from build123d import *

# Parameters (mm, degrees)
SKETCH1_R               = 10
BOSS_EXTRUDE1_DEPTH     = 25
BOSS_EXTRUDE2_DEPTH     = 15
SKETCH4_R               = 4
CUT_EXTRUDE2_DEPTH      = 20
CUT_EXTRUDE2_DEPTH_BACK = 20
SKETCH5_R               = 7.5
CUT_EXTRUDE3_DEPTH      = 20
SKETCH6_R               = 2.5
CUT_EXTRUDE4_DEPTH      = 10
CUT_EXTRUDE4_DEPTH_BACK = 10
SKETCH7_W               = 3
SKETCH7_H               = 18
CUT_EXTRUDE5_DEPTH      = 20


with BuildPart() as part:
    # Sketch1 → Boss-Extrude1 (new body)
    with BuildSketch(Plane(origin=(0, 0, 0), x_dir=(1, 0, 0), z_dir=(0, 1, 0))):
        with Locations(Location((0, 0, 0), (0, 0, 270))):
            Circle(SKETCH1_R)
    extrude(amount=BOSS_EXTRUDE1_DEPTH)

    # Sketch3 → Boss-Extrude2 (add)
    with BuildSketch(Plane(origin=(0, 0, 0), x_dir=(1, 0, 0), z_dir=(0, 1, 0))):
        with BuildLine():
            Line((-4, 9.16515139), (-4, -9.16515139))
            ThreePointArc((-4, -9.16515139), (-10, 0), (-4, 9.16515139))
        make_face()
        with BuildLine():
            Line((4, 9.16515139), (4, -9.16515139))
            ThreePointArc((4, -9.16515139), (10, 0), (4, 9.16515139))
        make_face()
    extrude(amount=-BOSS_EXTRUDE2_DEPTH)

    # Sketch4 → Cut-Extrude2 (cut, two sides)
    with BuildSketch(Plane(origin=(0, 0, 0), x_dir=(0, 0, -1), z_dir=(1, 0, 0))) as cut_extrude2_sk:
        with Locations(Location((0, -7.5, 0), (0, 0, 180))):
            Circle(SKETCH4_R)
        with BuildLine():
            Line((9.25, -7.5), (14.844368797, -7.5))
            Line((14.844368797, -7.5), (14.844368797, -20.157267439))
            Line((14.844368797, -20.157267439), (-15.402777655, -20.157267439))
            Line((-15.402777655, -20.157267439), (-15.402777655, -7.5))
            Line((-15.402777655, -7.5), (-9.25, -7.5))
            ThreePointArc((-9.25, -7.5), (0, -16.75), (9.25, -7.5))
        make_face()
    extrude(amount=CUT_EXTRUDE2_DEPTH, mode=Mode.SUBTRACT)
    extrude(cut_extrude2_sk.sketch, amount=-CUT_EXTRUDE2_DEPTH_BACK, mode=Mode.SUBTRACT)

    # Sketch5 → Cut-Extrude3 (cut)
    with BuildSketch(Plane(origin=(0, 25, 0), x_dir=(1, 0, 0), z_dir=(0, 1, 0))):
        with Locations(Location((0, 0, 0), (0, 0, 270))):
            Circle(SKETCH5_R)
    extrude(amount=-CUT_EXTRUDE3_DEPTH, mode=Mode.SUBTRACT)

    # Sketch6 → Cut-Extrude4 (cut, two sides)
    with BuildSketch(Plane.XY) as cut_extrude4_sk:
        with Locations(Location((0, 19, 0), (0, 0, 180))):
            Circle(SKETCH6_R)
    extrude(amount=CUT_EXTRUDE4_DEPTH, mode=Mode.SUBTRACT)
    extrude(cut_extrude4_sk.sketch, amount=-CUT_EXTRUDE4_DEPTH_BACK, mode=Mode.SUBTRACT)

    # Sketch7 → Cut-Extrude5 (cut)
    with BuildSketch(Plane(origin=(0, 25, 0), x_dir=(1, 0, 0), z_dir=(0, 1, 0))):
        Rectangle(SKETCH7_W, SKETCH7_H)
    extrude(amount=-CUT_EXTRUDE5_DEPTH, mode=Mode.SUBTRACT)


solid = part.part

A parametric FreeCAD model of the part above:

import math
import FreeCAD as App
import Part
import Sketcher

doc = App.newDocument("Part")
body = doc.addObject("PartDesign::Body", "Body")

sketch1 = doc.addObject("Sketcher::SketchObject", "Sketch")
body.addObject(sketch1)
sketch1.AttachmentSupport = (doc.XZ_Plane, [""])
sketch1.MapMode = "FlatFace"
sketch1.addGeometry(Part.Circle(App.Vector(0, 0, 0), App.Vector(0, 0, 1), 10), False)
sketch1.addConstraint(Sketcher.Constraint("Coincident", 0, 3, -1, 1))
sketch1.addConstraint(Sketcher.Constraint("Diameter", 0, 20.0))
pad1 = doc.addObject("PartDesign::Pad", "Pad")
body.addObject(pad1)
pad1.Profile = sketch1
pad1.Length = 25
pad1.Reversed = True

sketch2 = doc.addObject("Sketcher::SketchObject", "Sketch001")
body.addObject(sketch2)
sketch2.AttachmentSupport = (doc.XZ_Plane, [""])
sketch2.MapMode = "FlatFace"
sketch2.addGeometry(Part.LineSegment(App.Vector(-4, 9, 0), App.Vector(-4, -9, 0)), False)
sketch2.addGeometry(Part.ArcOfCircle(Part.Circle(App.Vector(0, 0, 0), App.Vector(0, 0, 1), 10), math.radians(114), math.radians(246)), False)
sketch2.addGeometry(Part.LineSegment(App.Vector(4, -9, 0), App.Vector(4, 9, 0)), False)
sketch2.addGeometry(Part.ArcOfCircle(Part.Circle(App.Vector(0, 0, 0), App.Vector(0, 0, 1), 10), math.radians(-66), math.radians(66)), False)
sketch2.addConstraint(Sketcher.Constraint("Coincident", 0, 1, 1, 1))
sketch2.addConstraint(Sketcher.Constraint("Coincident", 1, 2, 0, 2))
sketch2.addConstraint(Sketcher.Constraint("Coincident", 2, 1, 3, 1))
sketch2.addConstraint(Sketcher.Constraint("Coincident", 3, 2, 2, 2))
sketch2.addConstraint(Sketcher.Constraint("Vertical", 0))
sketch2.addConstraint(Sketcher.Constraint("Vertical", 2))
sketch2.addConstraint(Sketcher.Constraint("Coincident", 1, 3, -1, 1))
sketch2.addConstraint(Sketcher.Constraint("Coincident", 3, 3, -1, 1))
sketch2.addConstraint(Sketcher.Constraint("Equal", 1, 3))
sketch2.addConstraint(Sketcher.Constraint("Horizontal", 1, 2, 2, 1))
sketch2.addConstraint(Sketcher.Constraint("Radius", 1, 10.0))
sketch2.addConstraint(Sketcher.Constraint("DistanceX", 0, 1, -1, 1, 4.0))
pad2 = doc.addObject("PartDesign::Pad", "Pad001")
body.addObject(pad2)
pad2.Profile = sketch2
pad2.Length = 15

sketch3 = doc.addObject("Sketcher::SketchObject", "Sketch002")
body.addObject(sketch3)
sketch3.AttachmentSupport = (doc.YZ_Plane, [""])
sketch3.MapMode = "FlatFace"
sketch3.addGeometry(Part.Circle(App.Vector(-7.5, 0, 0), App.Vector(0, 0, 1), 4), False)
sketch3.addGeometry(Part.LineSegment(App.Vector(-7.5, -14.8, 0), App.Vector(-7.5, -9.2, 0)), False)
sketch3.addGeometry(Part.ArcOfCircle(Part.Circle(App.Vector(-7.5, 0, 0), App.Vector(0, 0, 1), 9.2), math.radians(90), math.radians(270)), False)
sketch3.addGeometry(Part.LineSegment(App.Vector(-7.5, 9.2, 0), App.Vector(-7.5, 15.4, 0)), False)
sketch3.addGeometry(Part.LineSegment(App.Vector(-7.5, 15.4, 0), App.Vector(-20.2, 15.4, 0)), False)
sketch3.addGeometry(Part.LineSegment(App.Vector(-20.2, 15.4, 0), App.Vector(-20.2, -14.8, 0)), False)
sketch3.addGeometry(Part.LineSegment(App.Vector(-20.2, -14.8, 0), App.Vector(-7.5, -14.8, 0)), False)
sketch3.addConstraint(Sketcher.Constraint("Coincident", 1, 2, 2, 2))
sketch3.addConstraint(Sketcher.Constraint("Coincident", 2, 1, 3, 1))
sketch3.addConstraint(Sketcher.Constraint("Coincident", 3, 2, 4, 1))
sketch3.addConstraint(Sketcher.Constraint("Coincident", 4, 2, 5, 1))
sketch3.addConstraint(Sketcher.Constraint("Coincident", 5, 2, 6, 1))
sketch3.addConstraint(Sketcher.Constraint("Coincident", 6, 2, 1, 1))
sketch3.addConstraint(Sketcher.Constraint("Vertical", 1))
sketch3.addConstraint(Sketcher.Constraint("Vertical", 3))
sketch3.addConstraint(Sketcher.Constraint("Horizontal", 4))
sketch3.addConstraint(Sketcher.Constraint("Vertical", 5))
sketch3.addConstraint(Sketcher.Constraint("Horizontal", 6))
sketch3.addConstraint(Sketcher.Constraint("Coincident", 2, 3, 0, 3))
sketch3.addConstraint(Sketcher.Constraint("Symmetric", 1, 2, 2, 1, -1))
sketch3.addConstraint(Sketcher.Constraint("Vertical", 2, 3, 1, 2))
sketch3.addConstraint(Sketcher.Constraint("Diameter", 0, 8.0))
sketch3.addConstraint(Sketcher.Constraint("Radius", 2, 9.25))
sketch3.addConstraint(Sketcher.Constraint("DistanceX", 0, 3, -1, 1, 7.5))
sketch3.addConstraint(Sketcher.Constraint("DistanceY", 1, 1, 1, 2, 5.594369))
sketch3.addConstraint(Sketcher.Constraint("DistanceX", 4, 2, 4, 1, 12.657267))
sketch3.addConstraint(Sketcher.Constraint("DistanceY", 3, 1, 3, 2, 6.152778))
pocket1 = doc.addObject("PartDesign::Pocket", "Pocket")
body.addObject(pocket1)
pocket1.Profile = sketch3
pocket1.Type = "ThroughAll"
pocket1.Midplane = True

sketch4 = doc.addObject("Sketcher::SketchObject", "Sketch003")
body.addObject(sketch4)
sketch4.AttachmentSupport = (doc.XZ_Plane, [""])
sketch4.MapMode = "FlatFace"
sketch4.AttachmentOffset = App.Placement(App.Vector(0, 0, -25), App.Rotation())
sketch4.addGeometry(Part.Circle(App.Vector(0, 0, 0), App.Vector(0, 0, 1), 8), False)
sketch4.addConstraint(Sketcher.Constraint("Coincident", 0, 3, -1, 1))
sketch4.addConstraint(Sketcher.Constraint("Diameter", 0, 15.0))
pocket2 = doc.addObject("PartDesign::Pocket", "Pocket001")
body.addObject(pocket2)
pocket2.Profile = sketch4
pocket2.Length = 20
pocket2.Reversed = True

sketch5 = doc.addObject("Sketcher::SketchObject", "Sketch004")
body.addObject(sketch5)
sketch5.AttachmentSupport = (doc.XY_Plane, [""])
sketch5.MapMode = "FlatFace"
sketch5.addGeometry(Part.Circle(App.Vector(0, 19, 0), App.Vector(0, 0, 1), 2.5), False)
sketch5.addConstraint(Sketcher.Constraint("PointOnObject", 0, 3, -2))
sketch5.addConstraint(Sketcher.Constraint("Diameter", 0, 5.0))
sketch5.addConstraint(Sketcher.Constraint("DistanceY", -1, 1, 0, 3, 19.0))
pocket3 = doc.addObject("PartDesign::Pocket", "Pocket002")
body.addObject(pocket3)
pocket3.Profile = sketch5
pocket3.Type = "ThroughAll"
pocket3.Midplane = True

sketch6 = doc.addObject("Sketcher::SketchObject", "Sketch005")
body.addObject(sketch6)
sketch6.AttachmentSupport = (doc.XZ_Plane, [""])
sketch6.MapMode = "FlatFace"
sketch6.AttachmentOffset = App.Placement(App.Vector(0, 0, -25), App.Rotation())
sketch6.addGeometry(Part.LineSegment(App.Vector(-1.5, -9, 0), App.Vector(-1.5, 9, 0)), False)
sketch6.addGeometry(Part.LineSegment(App.Vector(-1.5, 9, 0), App.Vector(1.5, 9, 0)), False)
sketch6.addGeometry(Part.LineSegment(App.Vector(1.5, 9, 0), App.Vector(1.5, -9, 0)), False)
sketch6.addGeometry(Part.LineSegment(App.Vector(1.5, -9, 0), App.Vector(-1.5, -9, 0)), False)
sketch6.addConstraint(Sketcher.Constraint("Coincident", 0, 2, 1, 1))
sketch6.addConstraint(Sketcher.Constraint("Coincident", 1, 2, 2, 1))
sketch6.addConstraint(Sketcher.Constraint("Coincident", 2, 2, 3, 1))
sketch6.addConstraint(Sketcher.Constraint("Coincident", 3, 2, 0, 1))
sketch6.addConstraint(Sketcher.Constraint("Vertical", 0))
sketch6.addConstraint(Sketcher.Constraint("Horizontal", 1))
sketch6.addConstraint(Sketcher.Constraint("Vertical", 2))
sketch6.addConstraint(Sketcher.Constraint("Horizontal", 3))
sketch6.addConstraint(Sketcher.Constraint("Symmetric", 0, 2, 2, 2, -1, 1))
sketch6.addConstraint(Sketcher.Constraint("DistanceX", 1, 1, 1, 2, 3.0))
sketch6.addConstraint(Sketcher.Constraint("DistanceY", 0, 1, 0, 2, 18.0))
pocket4 = doc.addObject("PartDesign::Pocket", "Pocket003")
body.addObject(pocket4)
pocket4.Profile = sketch6
pocket4.Length = 20
pocket4.Reversed = True

doc.recompute()
